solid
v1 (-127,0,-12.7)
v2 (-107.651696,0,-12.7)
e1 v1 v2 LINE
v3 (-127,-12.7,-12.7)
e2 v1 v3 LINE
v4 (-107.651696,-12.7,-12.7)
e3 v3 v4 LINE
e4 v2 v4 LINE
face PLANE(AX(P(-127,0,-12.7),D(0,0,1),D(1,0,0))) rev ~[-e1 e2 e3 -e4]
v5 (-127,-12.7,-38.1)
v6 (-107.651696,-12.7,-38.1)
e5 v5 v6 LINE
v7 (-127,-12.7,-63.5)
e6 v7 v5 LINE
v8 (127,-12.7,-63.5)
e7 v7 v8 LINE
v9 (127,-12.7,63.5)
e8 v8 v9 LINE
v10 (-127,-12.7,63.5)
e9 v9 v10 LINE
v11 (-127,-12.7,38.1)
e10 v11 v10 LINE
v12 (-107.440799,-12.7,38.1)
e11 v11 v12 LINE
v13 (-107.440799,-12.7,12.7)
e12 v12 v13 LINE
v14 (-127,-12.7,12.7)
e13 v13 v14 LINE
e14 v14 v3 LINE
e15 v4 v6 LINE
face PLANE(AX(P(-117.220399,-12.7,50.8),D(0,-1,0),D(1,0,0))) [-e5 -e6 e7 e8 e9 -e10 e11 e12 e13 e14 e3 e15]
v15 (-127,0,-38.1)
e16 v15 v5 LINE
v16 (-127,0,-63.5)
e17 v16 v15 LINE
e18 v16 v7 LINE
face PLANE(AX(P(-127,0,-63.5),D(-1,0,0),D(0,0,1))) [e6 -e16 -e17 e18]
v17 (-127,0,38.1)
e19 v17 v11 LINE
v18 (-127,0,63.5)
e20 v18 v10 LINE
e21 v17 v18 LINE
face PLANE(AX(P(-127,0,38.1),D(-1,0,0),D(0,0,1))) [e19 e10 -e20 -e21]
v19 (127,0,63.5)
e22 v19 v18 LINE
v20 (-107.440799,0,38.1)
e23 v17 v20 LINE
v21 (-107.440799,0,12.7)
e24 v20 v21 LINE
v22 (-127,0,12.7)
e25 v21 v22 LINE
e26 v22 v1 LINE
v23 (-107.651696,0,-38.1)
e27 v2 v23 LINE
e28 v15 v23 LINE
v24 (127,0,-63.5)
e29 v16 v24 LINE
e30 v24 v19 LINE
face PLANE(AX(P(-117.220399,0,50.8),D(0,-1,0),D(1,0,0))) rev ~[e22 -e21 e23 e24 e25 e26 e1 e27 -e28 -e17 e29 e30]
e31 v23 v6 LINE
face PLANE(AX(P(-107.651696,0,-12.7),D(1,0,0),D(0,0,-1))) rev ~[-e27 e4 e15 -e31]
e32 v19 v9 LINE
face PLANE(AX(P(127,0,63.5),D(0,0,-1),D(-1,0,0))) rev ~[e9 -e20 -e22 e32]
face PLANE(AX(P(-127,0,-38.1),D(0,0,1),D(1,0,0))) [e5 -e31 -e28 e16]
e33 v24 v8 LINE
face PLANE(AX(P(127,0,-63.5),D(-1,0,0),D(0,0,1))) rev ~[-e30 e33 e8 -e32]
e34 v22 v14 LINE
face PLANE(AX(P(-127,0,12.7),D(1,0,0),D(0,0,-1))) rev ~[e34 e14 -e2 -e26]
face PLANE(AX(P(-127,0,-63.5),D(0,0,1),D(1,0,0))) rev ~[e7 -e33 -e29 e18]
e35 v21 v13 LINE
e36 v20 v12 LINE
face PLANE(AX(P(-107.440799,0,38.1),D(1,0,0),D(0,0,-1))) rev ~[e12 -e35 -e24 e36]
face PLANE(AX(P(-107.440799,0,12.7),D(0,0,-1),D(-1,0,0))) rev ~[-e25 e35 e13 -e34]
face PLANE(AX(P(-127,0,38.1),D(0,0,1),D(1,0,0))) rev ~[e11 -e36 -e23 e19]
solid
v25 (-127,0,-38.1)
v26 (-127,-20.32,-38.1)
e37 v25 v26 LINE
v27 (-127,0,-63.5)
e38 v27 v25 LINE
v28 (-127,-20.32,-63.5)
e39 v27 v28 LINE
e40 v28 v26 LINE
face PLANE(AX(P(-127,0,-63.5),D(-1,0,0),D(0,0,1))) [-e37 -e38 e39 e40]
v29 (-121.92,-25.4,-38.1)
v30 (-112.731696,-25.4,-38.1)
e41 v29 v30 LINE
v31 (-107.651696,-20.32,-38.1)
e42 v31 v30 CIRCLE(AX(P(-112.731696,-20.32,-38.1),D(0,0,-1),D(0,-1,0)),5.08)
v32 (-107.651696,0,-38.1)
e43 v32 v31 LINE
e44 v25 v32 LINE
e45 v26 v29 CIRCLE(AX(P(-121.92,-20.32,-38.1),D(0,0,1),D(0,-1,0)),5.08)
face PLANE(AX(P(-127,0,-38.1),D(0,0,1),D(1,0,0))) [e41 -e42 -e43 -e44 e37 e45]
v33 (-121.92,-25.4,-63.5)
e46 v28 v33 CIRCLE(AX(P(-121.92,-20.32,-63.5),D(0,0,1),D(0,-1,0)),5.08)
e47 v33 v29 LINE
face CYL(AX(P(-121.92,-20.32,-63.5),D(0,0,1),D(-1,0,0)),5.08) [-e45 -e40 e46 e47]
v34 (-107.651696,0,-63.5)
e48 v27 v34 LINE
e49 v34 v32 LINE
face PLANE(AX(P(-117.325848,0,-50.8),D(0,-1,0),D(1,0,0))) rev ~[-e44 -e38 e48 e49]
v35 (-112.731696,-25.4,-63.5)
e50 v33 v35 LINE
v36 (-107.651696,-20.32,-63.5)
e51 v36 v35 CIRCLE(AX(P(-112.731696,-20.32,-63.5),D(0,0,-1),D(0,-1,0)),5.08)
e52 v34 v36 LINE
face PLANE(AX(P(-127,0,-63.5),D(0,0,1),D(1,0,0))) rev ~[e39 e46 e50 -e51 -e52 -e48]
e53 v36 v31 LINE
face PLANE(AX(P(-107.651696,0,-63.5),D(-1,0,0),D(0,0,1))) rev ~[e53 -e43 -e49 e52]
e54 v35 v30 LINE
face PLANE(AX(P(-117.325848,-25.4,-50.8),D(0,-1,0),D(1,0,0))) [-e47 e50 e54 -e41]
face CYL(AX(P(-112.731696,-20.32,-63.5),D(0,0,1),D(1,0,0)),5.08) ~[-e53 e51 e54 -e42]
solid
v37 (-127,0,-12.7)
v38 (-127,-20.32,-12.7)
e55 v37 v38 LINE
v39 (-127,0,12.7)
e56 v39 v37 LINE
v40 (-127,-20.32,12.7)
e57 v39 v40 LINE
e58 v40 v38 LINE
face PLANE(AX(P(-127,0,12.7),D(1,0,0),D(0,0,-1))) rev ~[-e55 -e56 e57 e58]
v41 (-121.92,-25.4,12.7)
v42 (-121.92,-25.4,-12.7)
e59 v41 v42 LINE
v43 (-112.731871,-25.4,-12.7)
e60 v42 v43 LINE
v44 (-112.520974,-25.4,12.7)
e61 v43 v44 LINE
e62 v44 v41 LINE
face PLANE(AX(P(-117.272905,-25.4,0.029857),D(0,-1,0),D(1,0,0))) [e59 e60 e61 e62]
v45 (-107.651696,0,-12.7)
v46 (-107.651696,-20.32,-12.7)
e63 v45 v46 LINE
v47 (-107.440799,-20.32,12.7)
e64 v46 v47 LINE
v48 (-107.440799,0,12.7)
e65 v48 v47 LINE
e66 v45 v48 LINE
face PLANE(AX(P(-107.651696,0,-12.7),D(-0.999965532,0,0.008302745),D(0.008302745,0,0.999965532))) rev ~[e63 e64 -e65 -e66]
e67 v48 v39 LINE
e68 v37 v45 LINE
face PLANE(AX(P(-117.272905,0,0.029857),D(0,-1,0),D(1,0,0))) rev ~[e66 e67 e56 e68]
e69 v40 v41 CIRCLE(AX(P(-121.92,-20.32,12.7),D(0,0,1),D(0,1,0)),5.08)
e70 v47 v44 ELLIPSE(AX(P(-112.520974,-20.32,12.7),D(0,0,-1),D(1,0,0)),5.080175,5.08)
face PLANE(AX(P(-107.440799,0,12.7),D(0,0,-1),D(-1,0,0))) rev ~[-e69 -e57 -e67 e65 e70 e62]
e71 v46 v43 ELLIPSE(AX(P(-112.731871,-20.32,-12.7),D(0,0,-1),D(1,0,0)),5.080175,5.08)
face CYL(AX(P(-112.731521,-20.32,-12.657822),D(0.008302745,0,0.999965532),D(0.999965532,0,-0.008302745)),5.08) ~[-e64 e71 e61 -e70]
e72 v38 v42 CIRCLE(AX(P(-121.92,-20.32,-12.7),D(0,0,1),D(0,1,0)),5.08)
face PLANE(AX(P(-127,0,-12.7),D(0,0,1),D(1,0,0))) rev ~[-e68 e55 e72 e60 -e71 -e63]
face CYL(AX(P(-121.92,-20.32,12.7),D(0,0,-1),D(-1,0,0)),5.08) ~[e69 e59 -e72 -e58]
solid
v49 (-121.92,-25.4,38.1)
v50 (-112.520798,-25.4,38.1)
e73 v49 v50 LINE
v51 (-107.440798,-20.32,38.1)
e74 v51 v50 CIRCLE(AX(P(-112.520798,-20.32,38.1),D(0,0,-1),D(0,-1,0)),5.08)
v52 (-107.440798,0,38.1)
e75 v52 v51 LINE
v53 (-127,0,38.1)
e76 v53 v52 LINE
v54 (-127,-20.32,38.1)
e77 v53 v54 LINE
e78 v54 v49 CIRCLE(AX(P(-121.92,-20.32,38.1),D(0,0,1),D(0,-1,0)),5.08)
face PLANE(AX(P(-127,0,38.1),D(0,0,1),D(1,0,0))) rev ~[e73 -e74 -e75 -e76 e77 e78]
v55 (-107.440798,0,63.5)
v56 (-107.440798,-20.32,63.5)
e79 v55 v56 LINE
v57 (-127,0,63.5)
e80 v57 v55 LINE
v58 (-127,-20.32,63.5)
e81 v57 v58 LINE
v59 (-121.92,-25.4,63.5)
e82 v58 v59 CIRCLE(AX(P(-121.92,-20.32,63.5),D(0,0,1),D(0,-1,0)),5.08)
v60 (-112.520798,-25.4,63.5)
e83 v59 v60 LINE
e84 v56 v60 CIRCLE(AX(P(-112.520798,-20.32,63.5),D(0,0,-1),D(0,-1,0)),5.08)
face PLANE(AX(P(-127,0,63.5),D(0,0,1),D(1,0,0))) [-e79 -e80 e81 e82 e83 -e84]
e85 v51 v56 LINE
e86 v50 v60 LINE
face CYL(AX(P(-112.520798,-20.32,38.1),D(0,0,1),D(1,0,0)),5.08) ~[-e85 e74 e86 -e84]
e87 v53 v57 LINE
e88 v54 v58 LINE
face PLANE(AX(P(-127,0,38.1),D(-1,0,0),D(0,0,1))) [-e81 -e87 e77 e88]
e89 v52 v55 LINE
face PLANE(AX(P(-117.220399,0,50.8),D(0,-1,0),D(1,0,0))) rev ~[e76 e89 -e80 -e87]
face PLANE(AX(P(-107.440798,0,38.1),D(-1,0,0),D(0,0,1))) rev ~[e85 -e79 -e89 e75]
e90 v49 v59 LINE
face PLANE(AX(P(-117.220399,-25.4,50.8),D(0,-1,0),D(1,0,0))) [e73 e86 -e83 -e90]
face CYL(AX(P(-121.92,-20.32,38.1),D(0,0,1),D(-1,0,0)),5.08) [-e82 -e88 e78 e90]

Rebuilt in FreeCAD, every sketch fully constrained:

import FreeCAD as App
import Part
import Sketcher
from FreeCAD import Vector
Q = App.Units.Quantity


def edges_at(feature, points):
    """Names of the edges that pass closest to the given points."""
    edges = feature.Shape.Edges
    near = lambda p: min(range(len(edges)), key=lambda i: edges[i].distToShape(Part.Vertex(*p))[0])
    return sorted({f"Edge{near(p) + 1}" for p in points})


def add_polygon(sketch, points):
    """Adds a closed chain of lines whose ends are joined by coincident constraints."""
    first, n = sketch.GeometryCount, len(points)
    for a, b in zip(points, points[1:] + points[:1]):
        sketch.addGeometry(Part.LineSegment(App.Vector(*a, 0), App.Vector(*b, 0)), False)
    for i in range(n):
        sketch.addConstraint(Sketcher.Constraint("Coincident", first + i, 2, first + (i + 1) % n, 1))

doc = App.newDocument("Part")
body = doc.addObject("PartDesign::Body", "Body")
body.AllowCompound = True

sketch1 = doc.addObject("Sketcher::SketchObject", "Sketch")
body.addObject(sketch1)
sketch1.AttachmentSupport = (doc.XZ_Plane, [""])
sketch1.MapMode = "FlatFace"
add_polygon(sketch1, [(-127, 63.5), (-127, 38.1), (-107.440798, 38.1), (-107.440798, 63.5)])
add_polygon(sketch1, [(-107.651696, -12.7), (-107.440799, 12.7), (-127, 12.7), (-127, -12.7)])
add_polygon(sketch1, [(-127, -38.1), (-127, -63.5), (-107.651696, -63.5), (-107.651696, -38.1)])
sketch1.addConstraint(Sketcher.Constraint("Vertical", 0))
sketch1.addConstraint(Sketcher.Constraint("Horizontal", 1))
sketch1.addConstraint(Sketcher.Constraint("Vertical", 2))
sketch1.addConstraint(Sketcher.Constraint("Horizontal", 3))
sketch1.addConstraint(Sketcher.Constraint("Horizontal", 5))
sketch1.addConstraint(Sketcher.Constraint("Vertical", 6))
sketch1.addConstraint(Sketcher.Constraint("Horizontal", 7))
sketch1.addConstraint(Sketcher.Constraint("Vertical", 8))
sketch1.addConstraint(Sketcher.Constraint("Horizontal", 9))
sketch1.addConstraint(Sketcher.Constraint("Vertical", 10))
sketch1.addConstraint(Sketcher.Constraint("Horizontal", 11))
sketch1.addConstraint(Sketcher.Constraint("Symmetric", 3, 2, 8, 2, -1))
sketch1.addConstraint(Sketcher.Constraint("Vertical", 2, 2, 4, 2))
sketch1.addConstraint(Sketcher.Constraint("Vertical", 3, 2, 5, 2))
sketch1.addConstraint(Sketcher.Constraint("Vertical", 7, 2, 9, 2))
sketch1.addConstraint(Sketcher.Constraint("Equal", 2, 6))
sketch1.addConstraint(Sketcher.Constraint("Equal", 6, 8))
sketch1.addConstraint(Sketcher.Constraint("DistanceY", 0, 2, 0, 1, Q("1 in")))
sketch1.addConstraint(Sketcher.Constraint("DistanceX", 0, 2, -1, 1, Q("5 in")))
sketch1.addConstraint(Sketcher.Constraint("DistanceY", 4, 2, 1, 2, Q("1 in")))
sketch1.addConstraint(Sketcher.Constraint("DistanceY", 8, 2, 6, 2, Q("2 in")))
sketch1.addConstraint(Sketcher.Constraint("DistanceX", 1, 1, 1, 2, 19.559201))
sketch1.addConstraint(Sketcher.Constraint("DistanceX", 7, 1, 7, 2, 19.348304))
pad1 = doc.addObject("PartDesign::Pad", "Pad")
body.addObject(pad1)
pad1.Profile = sketch1
pad1.Length = Q("1 in")
doc.recompute()

fillet = doc.addObject("PartDesign::Fillet", "Fillet")
body.addObject(fillet)
fillet.Base = (pad1, edges_at(pad1, [
    (-107.441, -25.4, 50.8),
    (-107.546, -25.4, 0),
    (-107.652, -25.4, -50.8),
    (-127, -25.4, -50.8),
    (-127, -25.4, 0),
    (-127, -25.4, 50.8),
]))
fillet.Radius = Q("0.2 in")
body2 = doc.addObject("PartDesign::Body", "Body001")

sketch2 = doc.addObject("Sketcher::SketchObject", "Sketch001")
body2.addObject(sketch2)
sketch2.AttachmentSupport = (doc.getObject("XZ_Plane001"), [""])
sketch2.MapMode = "FlatFace"
add_polygon(sketch2, [(-127, 63.5), (-127, 38.1), (-107.440799, 38.1), (-107.440799, 12.7), (-127, 12.7), (-127, -12.7), (-107.651696, -12.7), (-107.651696, -38.1), (-127, -38.1), (-127, -63.5), (127, -63.5), (127, 63.5)])
sketch2.addConstraint(Sketcher.Constraint("Vertical", 0))
sketch2.addConstraint(Sketcher.Constraint("Horizontal", 1))
sketch2.addConstraint(Sketcher.Constraint("Vertical", 2))
sketch2.addConstraint(Sketcher.Constraint("Horizontal", 3))
sketch2.addConstraint(Sketcher.Constraint("Vertical", 4))
sketch2.addConstraint(Sketcher.Constraint("Horizontal", 5))
sketch2.addConstraint(Sketcher.Constraint("Vertical", 6))
sketch2.addConstraint(Sketcher.Constraint("Horizontal", 7))
sketch2.addConstraint(Sketcher.Constraint("Vertical", 8))
sketch2.addConstraint(Sketcher.Constraint("Horizontal", 9))
sketch2.addConstraint(Sketcher.Constraint("Vertical", 10))
sketch2.addConstraint(Sketcher.Constraint("Horizontal", 11))
sketch2.addConstraint(Sketcher.Constraint("Symmetric", 8, 2, 10, 2, -1, 1))
sketch2.addConstraint(Sketcher.Constraint("Symmetric", 0, 2, 7, 2, -1))
sketch2.addConstraint(Sketcher.Constraint("Vertical", 0, 2, 3, 2))
sketch2.addConstraint(Sketcher.Constraint("Equal", 0, 2))
sketch2.addConstraint(Sketcher.Constraint("Equal", 2, 4))
sketch2.addConstraint(Sketcher.Constraint("Equal", 4, 6))
sketch2.addConstraint(Sketcher.Constraint("DistanceX", 9, 1, 9, 2, Q("10 in")))
sketch2.addConstraint(Sketcher.Constraint("DistanceY", 0, 2, 0, 1, Q("1 in")))
sketch2.addConstraint(Sketcher.Constraint("DistanceX", 1, 1, 1, 2, 19.559201))
sketch2.addConstraint(Sketcher.Constraint("DistanceX", 5, 1, 5, 2, 19.348304))
pad2 = doc.addObject("PartDesign::Pad", "Pad001")
body2.addObject(pad2)
pad2.Profile = sketch2
pad2.Length = Q("0.5 in")

doc.recompute()
